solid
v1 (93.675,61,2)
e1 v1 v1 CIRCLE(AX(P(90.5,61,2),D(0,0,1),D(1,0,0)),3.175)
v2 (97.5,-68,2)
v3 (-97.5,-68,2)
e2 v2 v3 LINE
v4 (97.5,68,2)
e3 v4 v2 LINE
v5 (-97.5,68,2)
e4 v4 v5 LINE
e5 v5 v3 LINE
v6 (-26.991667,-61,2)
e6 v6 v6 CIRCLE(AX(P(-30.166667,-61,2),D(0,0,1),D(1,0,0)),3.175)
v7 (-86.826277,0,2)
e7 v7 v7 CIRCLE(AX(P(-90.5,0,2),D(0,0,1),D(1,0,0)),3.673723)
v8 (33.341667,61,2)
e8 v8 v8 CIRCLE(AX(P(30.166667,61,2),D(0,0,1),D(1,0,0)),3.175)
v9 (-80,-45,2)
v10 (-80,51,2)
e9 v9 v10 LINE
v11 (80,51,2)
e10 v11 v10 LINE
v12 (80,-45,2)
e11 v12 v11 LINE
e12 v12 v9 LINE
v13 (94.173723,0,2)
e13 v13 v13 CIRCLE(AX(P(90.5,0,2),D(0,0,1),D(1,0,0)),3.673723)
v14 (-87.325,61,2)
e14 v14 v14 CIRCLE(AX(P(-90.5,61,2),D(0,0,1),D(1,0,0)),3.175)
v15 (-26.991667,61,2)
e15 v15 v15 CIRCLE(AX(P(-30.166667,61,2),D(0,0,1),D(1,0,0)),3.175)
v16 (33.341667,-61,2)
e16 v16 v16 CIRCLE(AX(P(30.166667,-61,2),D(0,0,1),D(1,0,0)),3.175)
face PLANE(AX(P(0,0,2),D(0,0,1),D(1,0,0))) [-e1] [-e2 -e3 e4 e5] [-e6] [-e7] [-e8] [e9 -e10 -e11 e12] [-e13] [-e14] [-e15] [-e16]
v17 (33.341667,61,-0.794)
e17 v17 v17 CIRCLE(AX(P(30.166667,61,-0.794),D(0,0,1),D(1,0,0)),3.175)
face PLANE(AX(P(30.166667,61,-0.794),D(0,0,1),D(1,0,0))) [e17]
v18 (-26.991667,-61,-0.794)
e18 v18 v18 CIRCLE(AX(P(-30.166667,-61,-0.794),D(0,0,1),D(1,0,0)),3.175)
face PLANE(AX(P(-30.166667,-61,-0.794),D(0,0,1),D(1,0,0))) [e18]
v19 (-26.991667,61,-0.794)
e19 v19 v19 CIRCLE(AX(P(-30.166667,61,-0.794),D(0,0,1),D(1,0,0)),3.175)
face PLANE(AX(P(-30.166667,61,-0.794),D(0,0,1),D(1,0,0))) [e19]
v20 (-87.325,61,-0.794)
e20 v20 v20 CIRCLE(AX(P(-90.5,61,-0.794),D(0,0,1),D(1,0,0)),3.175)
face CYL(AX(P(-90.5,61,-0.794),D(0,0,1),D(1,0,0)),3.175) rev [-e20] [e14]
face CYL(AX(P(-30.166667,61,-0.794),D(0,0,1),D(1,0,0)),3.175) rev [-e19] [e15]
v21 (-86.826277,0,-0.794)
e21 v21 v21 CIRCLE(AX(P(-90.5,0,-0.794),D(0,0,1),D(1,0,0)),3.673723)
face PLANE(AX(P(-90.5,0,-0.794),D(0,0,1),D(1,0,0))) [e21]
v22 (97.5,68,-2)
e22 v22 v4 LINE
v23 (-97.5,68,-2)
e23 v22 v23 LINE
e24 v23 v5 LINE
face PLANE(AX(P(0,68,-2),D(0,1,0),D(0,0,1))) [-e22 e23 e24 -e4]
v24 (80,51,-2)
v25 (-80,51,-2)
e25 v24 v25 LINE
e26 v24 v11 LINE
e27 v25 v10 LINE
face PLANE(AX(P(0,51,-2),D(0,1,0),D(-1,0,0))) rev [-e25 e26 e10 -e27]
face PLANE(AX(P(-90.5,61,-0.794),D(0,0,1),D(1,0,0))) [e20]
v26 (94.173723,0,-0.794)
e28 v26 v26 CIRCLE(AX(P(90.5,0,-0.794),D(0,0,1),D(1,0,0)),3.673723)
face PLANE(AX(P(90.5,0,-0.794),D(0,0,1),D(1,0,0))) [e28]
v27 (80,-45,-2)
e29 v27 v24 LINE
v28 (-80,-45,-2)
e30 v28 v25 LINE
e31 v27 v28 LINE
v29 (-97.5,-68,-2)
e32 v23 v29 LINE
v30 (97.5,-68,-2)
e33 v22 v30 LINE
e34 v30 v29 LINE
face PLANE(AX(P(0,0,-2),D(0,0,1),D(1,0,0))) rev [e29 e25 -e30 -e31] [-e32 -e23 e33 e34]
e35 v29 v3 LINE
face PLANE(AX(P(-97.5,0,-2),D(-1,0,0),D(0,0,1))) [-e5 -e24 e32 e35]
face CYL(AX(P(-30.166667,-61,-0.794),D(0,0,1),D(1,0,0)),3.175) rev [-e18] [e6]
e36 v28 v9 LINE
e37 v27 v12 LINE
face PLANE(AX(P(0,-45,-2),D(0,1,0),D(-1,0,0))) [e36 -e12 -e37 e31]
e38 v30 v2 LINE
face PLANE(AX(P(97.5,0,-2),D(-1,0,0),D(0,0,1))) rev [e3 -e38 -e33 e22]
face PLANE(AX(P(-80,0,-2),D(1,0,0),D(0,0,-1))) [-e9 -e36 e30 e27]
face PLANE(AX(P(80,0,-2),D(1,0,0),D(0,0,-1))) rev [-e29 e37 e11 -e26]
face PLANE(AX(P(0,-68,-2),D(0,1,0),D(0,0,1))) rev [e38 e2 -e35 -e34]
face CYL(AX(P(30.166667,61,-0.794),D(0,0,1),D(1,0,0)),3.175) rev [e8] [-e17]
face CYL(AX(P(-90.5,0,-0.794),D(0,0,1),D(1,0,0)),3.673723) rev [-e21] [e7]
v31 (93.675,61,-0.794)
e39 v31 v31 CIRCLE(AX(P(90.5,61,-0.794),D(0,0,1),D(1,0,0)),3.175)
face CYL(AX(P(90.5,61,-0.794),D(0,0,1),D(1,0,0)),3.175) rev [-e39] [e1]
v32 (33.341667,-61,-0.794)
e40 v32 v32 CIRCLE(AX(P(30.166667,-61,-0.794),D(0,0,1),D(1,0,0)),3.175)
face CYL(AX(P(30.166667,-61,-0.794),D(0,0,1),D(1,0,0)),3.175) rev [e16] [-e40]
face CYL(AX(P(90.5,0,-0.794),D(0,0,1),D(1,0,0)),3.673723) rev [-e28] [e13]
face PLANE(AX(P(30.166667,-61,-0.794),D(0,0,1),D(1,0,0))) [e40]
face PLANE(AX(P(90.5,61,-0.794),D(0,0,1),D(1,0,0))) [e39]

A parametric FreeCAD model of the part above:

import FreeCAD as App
import Part
import Sketcher

V = App.Vector
Q = App.Units.Quantity

doc = App.newDocument("Part")
body = doc.addObject("PartDesign::Body", "Body")

# Sketch on XY plane
sketch1 = doc.addObject("Sketcher::SketchObject", "Sketch")
body.addObject(sketch1)
sketch1.AttachmentSupport = (doc.XY_Plane, [""])
sketch1.MapMode = "FlatFace"
sketch1.addGeometry(Part.LineSegment(V(-98, 68, 0), V(-98, -68, 0)), False)
sketch1.addGeometry(Part.LineSegment(V(-98, -68, 0), V(98, -68, 0)), False)
sketch1.addGeometry(Part.LineSegment(V(98, -68, 0), V(98, 68, 0)), False)
sketch1.addGeometry(Part.LineSegment(V(98, 68, 0), V(-98, 68, 0)), False)
sketch1.addGeometry(Part.LineSegment(V(-80, 51, 0), V(80, 51, 0)), False)
sketch1.addGeometry(Part.LineSegment(V(80, 51, 0), V(80, -45, 0)), False)
sketch1.addGeometry(Part.LineSegment(V(80, -45, 0), V(-80, -45, 0)), False)
sketch1.addGeometry(Part.LineSegment(V(-80, -45, 0), V(-80, 51, 0)), False)
sketch1.addConstraint(Sketcher.Constraint("Coincident", 0, 2, 1, 1))
sketch1.addConstraint(Sketcher.Constraint("Coincident", 1, 2, 2, 1))
sketch1.addConstraint(Sketcher.Constraint("Coincident", 2, 2, 3, 1))
sketch1.addConstraint(Sketcher.Constraint("Coincident", 3, 2, 0, 1))
sketch1.addConstraint(Sketcher.Constraint("Coincident", 4, 2, 5, 1))
sketch1.addConstraint(Sketcher.Constraint("Coincident", 5, 2, 6, 1))
sketch1.addConstraint(Sketcher.Constraint("Coincident", 6, 2, 7, 1))
sketch1.addConstraint(Sketcher.Constraint("Coincident", 7, 2, 4, 1))
sketch1.addConstraint(Sketcher.Constraint("Vertical", 0))
sketch1.addConstraint(Sketcher.Constraint("Horizontal", 1))
sketch1.addConstraint(Sketcher.Constraint("Vertical", 2))
sketch1.addConstraint(Sketcher.Constraint("Horizontal", 3))
sketch1.addConstraint(Sketcher.Constraint("Horizontal", 4))
sketch1.addConstraint(Sketcher.Constraint("Vertical", 5))
sketch1.addConstraint(Sketcher.Constraint("Horizontal", 6))
sketch1.addConstraint(Sketcher.Constraint("Vertical", 7))
sketch1.addConstraint(Sketcher.Constraint("Symmetric", 0, 2, 2, 2, -1, 1))
sketch1.addConstraint(Sketcher.Constraint("DistanceX", 1, 1, 1, 2, Q("195 mm")))
sketch1.addConstraint(Sketcher.Constraint("DistanceX", 4, 1, 4, 2, Q("160 mm")))
sketch1.addConstraint(Sketcher.Constraint("DistanceY", 0, 2, 0, 1, Q("136 mm")))
sketch1.addConstraint(Sketcher.Constraint("DistanceY", 5, 2, 5, 1, Q("96 mm")))
sketch1.addConstraint(Sketcher.Constraint("DistanceX", -1, 1, 4, 2, Q("80 mm")))
sketch1.addConstraint(Sketcher.Constraint("DistanceY", -1, 1, 4, 2, Q("51 mm")))
pad1 = doc.addObject("PartDesign::Pad", "Pad")
body.addObject(pad1)
pad1.Profile = sketch1
pad1.Length = 2
pad1.Reversed = True

# Sketch on XY plane
sketch2 = doc.addObject("Sketcher::SketchObject", "Sketch001")
body.addObject(sketch2)
sketch2.AttachmentSupport = (doc.XY_Plane, [""])
sketch2.MapMode = "FlatFace"
sketch2.addGeometry(Part.LineSegment(V(-98, 68, 0), V(-98, -68, 0)), False)
sketch2.addGeometry(Part.LineSegment(V(-98, -68, 0), V(98, -68, 0)), False)
sketch2.addGeometry(Part.LineSegment(V(98, -68, 0), V(98, 68, 0)), False)
sketch2.addGeometry(Part.LineSegment(V(98, 68, 0), V(-98, 68, 0)), False)
sketch2.addGeometry(Part.LineSegment(V(-80, 51, 0), V(80, 51, 0)), False)
sketch2.addGeometry(Part.LineSegment(V(80, 51, 0), V(80, -45, 0)), False)
sketch2.addGeometry(Part.LineSegment(V(80, -45, 0), V(-80, -45, 0)), False)
sketch2.addGeometry(Part.LineSegment(V(-80, -45, 0), V(-80, 51, 0)), False)
sketch2.addConstraint(Sketcher.Constraint("Coincident", 0, 2, 1, 1))
sketch2.addConstraint(Sketcher.Constraint("Coincident", 1, 2, 2, 1))
sketch2.addConstraint(Sketcher.Constraint("Coincident", 2, 2, 3, 1))
sketch2.addConstraint(Sketcher.Constraint("Coincident", 3, 2, 0, 1))
sketch2.addConstraint(Sketcher.Constraint("Coincident", 4, 2, 5, 1))
sketch2.addConstraint(Sketcher.Constraint("Coincident", 5, 2, 6, 1))
sketch2.addConstraint(Sketcher.Constraint("Coincident", 6, 2, 7, 1))
sketch2.addConstraint(Sketcher.Constraint("Coincident", 7, 2, 4, 1))
sketch2.addConstraint(Sketcher.Constraint("Vertical", 0))
sketch2.addConstraint(Sketcher.Constraint("Horizontal", 1))
sketch2.addConstraint(Sketcher.Constraint("Vertical", 2))
sketch2.addConstraint(Sketcher.Constraint("Horizontal", 3))
sketch2.addConstraint(Sketcher.Constraint("Horizontal", 4))
sketch2.addConstraint(Sketcher.Constraint("Vertical", 5))
sketch2.addConstraint(Sketcher.Constraint("Horizontal", 6))
sketch2.addConstraint(Sketcher.Constraint("Vertical", 7))
sketch2.addConstraint(Sketcher.Constraint("Symmetric", 0, 2, 2, 2, -1, 1))
sketch2.addConstraint(Sketcher.Constraint("DistanceX", 1, 1, 1, 2, Q("195 mm")))
sketch2.addConstraint(Sketcher.Constraint("DistanceX", 4, 1, 4, 2, Q("160 mm")))
sketch2.addConstraint(Sketcher.Constraint("DistanceY", 0, 2, 0, 1, Q("136 mm")))
sketch2.addConstraint(Sketcher.Constraint("DistanceY", 5, 2, 5, 1, Q("96 mm")))
sketch2.addConstraint(Sketcher.Constraint("DistanceX", -1, 1, 4, 2, Q("80 mm")))
sketch2.addConstraint(Sketcher.Constraint("DistanceY", -1, 1, 4, 2, Q("51 mm")))
pad2 = doc.addObject("PartDesign::Pad", "Pad001")
body.addObject(pad2)
pad2.Profile = sketch2
pad2.Length = 2

# Sketch on XY plane
sketch3 = doc.addObject("Sketcher::SketchObject", "Sketch002")
body.addObject(sketch3)
sketch3.AttachmentSupport = (doc.XY_Plane, [""])
sketch3.MapMode = "FlatFace"
sketch3.AttachmentOffset = App.Placement(V(0, 0, 2), App.Rotation())
sketch3.addGeometry(Part.Circle(V(-90.5, 61, 0), V(0, 0, 1), 3.2), False)
sketch3.addGeometry(Part.Circle(V(90.5, 61, 0), V(0, 0, 1), 3.2), False)
sketch3.addGeometry(Part.Circle(V(-30.2, -61, 0), V(0, 0, 1), 3.2), False)
sketch3.addGeometry(Part.Circle(V(30.2, -61, 0), V(0, 0, 1), 3.2), False)
sketch3.addGeometry(Part.Circle(V(90.5, 0, 0), V(0, 0, 1), 3.7), False)
sketch3.addGeometry(Part.Circle(V(-30.2, 61, 0), V(0, 0, 1), 3.2), False)
sketch3.addGeometry(Part.Circle(V(30.2, 61, 0), V(0, 0, 1), 3.2), False)
sketch3.addGeometry(Part.Circle(V(-90.5, 0, 0), V(0, 0, 1), 3.7), False)
sketch3.addConstraint(Sketcher.Constraint("Equal", 0, 1))
sketch3.addConstraint(Sketcher.Constraint("Equal", 1, 2))
sketch3.addConstraint(Sketcher.Constraint("Equal", 2, 3))
sketch3.addConstraint(Sketcher.Constraint("Equal", 3, 5))
sketch3.addConstraint(Sketcher.Constraint("Equal", 5, 6))
sketch3.addConstraint(Sketcher.Constraint("Equal", 4, 7))
sketch3.addConstraint(Sketcher.Constraint("Symmetric", 3, 3, 5, 3, -1, 1))
sketch3.addConstraint(Sketcher.Constraint("Symmetric", 2, 3, 6, 3, -1, 1))
sketch3.addConstraint(Sketcher.Constraint("Symmetric", 4, 3, 7, 3, -1, 1))
sketch3.addConstraint(Sketcher.Constraint("Symmetric", 0, 3, 1, 3, -2))
sketch3.addConstraint(Sketcher.Constraint("Symmetric", 2, 3, 3, 3, -2))
sketch3.addConstraint(Sketcher.Constraint("PointOnObject", 4, 3, -1))
sketch3.addConstraint(Sketcher.Constraint("Horizontal", 1, 3, 5, 3))
sketch3.addConstraint(Sketcher.Constraint("Vertical", 1, 3, 4, 3))
sketch3.addConstraint(Sketcher.Constraint("Diameter", 0, Q("6.35 mm")))
sketch3.addConstraint(Sketcher.Constraint("DistanceY", -1, 1, 0, 3, Q("61 mm")))
sketch3.addConstraint(Sketcher.Constraint("DistanceX", 0, 3, 1, 3, Q("181 mm")))
sketch3.addConstraint(Sketcher.Constraint("Diameter", 4, Q("7.347445 mm")))
sketch3.addConstraint(Sketcher.Constraint("DistanceX", 2, 3, -1, 1, Q("30.166667 mm")))
pocket1 = doc.addObject("PartDesign::Pocket", "Pocket")
body.addObject(pocket1)
pocket1.Profile = sketch3
pocket1.Length = 2.794

doc.recompute()
